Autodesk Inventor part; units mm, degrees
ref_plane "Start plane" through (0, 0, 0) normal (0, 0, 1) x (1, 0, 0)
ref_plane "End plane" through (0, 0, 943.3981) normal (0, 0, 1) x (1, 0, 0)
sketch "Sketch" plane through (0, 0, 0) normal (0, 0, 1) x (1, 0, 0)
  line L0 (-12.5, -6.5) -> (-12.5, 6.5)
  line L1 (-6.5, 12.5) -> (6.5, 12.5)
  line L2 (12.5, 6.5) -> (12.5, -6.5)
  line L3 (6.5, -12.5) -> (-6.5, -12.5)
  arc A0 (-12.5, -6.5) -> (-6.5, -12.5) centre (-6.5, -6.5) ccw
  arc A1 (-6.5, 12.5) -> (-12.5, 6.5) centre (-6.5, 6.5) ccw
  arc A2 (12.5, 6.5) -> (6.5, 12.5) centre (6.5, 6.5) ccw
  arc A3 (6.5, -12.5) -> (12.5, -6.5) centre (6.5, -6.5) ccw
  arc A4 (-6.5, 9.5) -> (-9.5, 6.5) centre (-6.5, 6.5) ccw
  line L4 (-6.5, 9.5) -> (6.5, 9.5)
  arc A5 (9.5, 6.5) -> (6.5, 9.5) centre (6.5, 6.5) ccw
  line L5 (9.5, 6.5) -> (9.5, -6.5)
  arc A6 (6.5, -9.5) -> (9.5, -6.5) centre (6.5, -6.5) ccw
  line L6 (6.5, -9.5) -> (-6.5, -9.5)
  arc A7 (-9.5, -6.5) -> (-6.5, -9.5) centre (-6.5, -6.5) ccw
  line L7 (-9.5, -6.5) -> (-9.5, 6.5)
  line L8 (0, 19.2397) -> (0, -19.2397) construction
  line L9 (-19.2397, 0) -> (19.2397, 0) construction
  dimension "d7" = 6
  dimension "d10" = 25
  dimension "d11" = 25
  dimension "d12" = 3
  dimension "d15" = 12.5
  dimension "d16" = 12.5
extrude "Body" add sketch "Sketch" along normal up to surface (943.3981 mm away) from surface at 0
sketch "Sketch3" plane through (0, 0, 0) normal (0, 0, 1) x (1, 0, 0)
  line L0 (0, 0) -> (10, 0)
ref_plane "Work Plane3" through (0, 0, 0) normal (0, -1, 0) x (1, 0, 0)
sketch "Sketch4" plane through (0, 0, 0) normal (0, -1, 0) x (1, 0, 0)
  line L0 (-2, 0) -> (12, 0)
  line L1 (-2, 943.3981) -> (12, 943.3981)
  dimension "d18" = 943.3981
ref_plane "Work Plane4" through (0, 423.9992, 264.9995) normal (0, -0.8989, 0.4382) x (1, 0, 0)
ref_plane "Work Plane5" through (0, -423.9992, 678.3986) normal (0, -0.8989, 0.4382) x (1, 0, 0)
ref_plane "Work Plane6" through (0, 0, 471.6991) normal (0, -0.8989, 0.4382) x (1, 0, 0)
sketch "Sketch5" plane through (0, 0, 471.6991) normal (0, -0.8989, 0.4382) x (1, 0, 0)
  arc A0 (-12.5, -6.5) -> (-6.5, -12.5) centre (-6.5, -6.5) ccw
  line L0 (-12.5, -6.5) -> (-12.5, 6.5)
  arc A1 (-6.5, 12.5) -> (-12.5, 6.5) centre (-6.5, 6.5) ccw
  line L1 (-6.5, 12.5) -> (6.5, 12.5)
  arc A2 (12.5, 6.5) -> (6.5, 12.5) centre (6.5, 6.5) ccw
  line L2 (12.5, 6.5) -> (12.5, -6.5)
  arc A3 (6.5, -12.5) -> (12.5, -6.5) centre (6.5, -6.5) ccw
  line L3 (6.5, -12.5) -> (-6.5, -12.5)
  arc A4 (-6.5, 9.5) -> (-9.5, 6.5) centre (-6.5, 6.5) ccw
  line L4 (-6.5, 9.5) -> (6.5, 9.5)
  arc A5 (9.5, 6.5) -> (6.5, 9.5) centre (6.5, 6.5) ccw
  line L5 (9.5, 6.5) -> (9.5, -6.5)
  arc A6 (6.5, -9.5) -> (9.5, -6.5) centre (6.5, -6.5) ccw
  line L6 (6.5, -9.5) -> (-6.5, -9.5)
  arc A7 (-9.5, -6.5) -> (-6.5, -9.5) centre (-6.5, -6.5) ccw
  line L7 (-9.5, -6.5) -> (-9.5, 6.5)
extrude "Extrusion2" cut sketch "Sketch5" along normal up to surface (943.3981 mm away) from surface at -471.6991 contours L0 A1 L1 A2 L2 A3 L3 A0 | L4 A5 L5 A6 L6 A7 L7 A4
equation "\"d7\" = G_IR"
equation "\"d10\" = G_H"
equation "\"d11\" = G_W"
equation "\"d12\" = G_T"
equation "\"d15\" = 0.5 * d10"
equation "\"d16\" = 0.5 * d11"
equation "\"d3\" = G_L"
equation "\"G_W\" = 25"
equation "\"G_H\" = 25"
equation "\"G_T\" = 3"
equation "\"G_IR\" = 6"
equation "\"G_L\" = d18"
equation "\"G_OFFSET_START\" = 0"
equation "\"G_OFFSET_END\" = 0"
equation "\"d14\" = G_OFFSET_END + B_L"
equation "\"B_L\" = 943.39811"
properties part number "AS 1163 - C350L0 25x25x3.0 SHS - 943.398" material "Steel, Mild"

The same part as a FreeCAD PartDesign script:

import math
import FreeCAD as App
import Part
import Sketcher
from FreeCAD import Vector
Q = App.Units.Quantity

doc = App.newDocument("Part")
body = doc.addObject("PartDesign::Body", "Body")
body.AllowCompound = True

# Sketch on XY plane
sketch1 = body.newObject("Sketcher::SketchObject", "Sketch")
sketch1.AttachmentSupport = (doc.getObject("XY_Plane"), [""])
sketch1.MapMode = "FlatFace"
sketch1.addGeometry([
    Part.LineSegment(Vector(-12.5, 6.5, 0), Vector(-12.5, -6.5, 0)),  # 0
    Part.ArcOfCircle(Part.Circle(Vector(-6.5, -6.5, 0), Vector(0, 0, 1), 6), math.radians(180), math.radians(270)),  # 1
    Part.LineSegment(Vector(-6.5, -12.5, 0), Vector(6.5, -12.5, 0)),  # 2
    Part.ArcOfCircle(Part.Circle(Vector(6.5, -6.5, 0), Vector(0, 0, 1), 6), math.radians(-90), math.radians(0)),  # 3
    Part.LineSegment(Vector(12.5, -6.5, 0), Vector(12.5, 6.5, 0)),  # 4
    Part.ArcOfCircle(Part.Circle(Vector(6.5, 6.5, 0), Vector(0, 0, 1), 6), math.radians(0), math.radians(90)),  # 5
    Part.LineSegment(Vector(6.5, 12.5, 0), Vector(-6.5, 12.5, 0)),  # 6
    Part.ArcOfCircle(Part.Circle(Vector(-6.5, 6.5, 0), Vector(0, 0, 1), 6), math.radians(90), math.radians(180)),  # 7
    Part.ArcOfCircle(Part.Circle(Vector(-6.5, 6.5, 0), Vector(0, 0, 1), 3), math.radians(90), math.radians(180)),  # 8
    Part.LineSegment(Vector(-6.5, 9.5, 0), Vector(6.5, 9.5, 0)),  # 9
    Part.ArcOfCircle(Part.Circle(Vector(6.5, 6.5, 0), Vector(0, 0, 1), 3), math.radians(0), math.radians(90)),  # 10
    Part.LineSegment(Vector(9.5, 6.5, 0), Vector(9.5, -6.5, 0)),  # 11
    Part.ArcOfCircle(Part.Circle(Vector(6.5, -6.5, 0), Vector(0, 0, 1), 3), math.radians(-90), math.radians(0)),  # 12
    Part.LineSegment(Vector(6.5, -9.5, 0), Vector(-6.5, -9.5, 0)),  # 13
    Part.ArcOfCircle(Part.Circle(Vector(-6.5, -6.5, 0), Vector(0, 0, 1), 3), math.radians(180), math.radians(270)),  # 14
    Part.LineSegment(Vector(-9.5, -6.5, 0), Vector(-9.5, 6.5, 0)),  # 15
], False)
sketch1.addConstraint([
    Sketcher.Constraint("Tangent", 0, 2, 1, 1),
    Sketcher.Constraint("Tangent", 1, 2, 2, 1),
    Sketcher.Constraint("Tangent", 2, 2, 3, 1),
    Sketcher.Constraint("Tangent", 3, 2, 4, 1),
    Sketcher.Constraint("Tangent", 4, 2, 5, 1),
    Sketcher.Constraint("Tangent", 5, 2, 6, 1),
    Sketcher.Constraint("Tangent", 6, 2, 7, 1),
    Sketcher.Constraint("Tangent", 7, 2, 0, 1),
    Sketcher.Constraint("Tangent", 8, 1, 9, 1),
    Sketcher.Constraint("Tangent", 9, 2, 10, 2),
    Sketcher.Constraint("Tangent", 10, 1, 11, 1),
    Sketcher.Constraint("Tangent", 11, 2, 12, 2),
    Sketcher.Constraint("Tangent", 12, 1, 13, 1),
    Sketcher.Constraint("Tangent", 13, 2, 14, 2),
    Sketcher.Constraint("Tangent", 14, 1, 15, 1),
    Sketcher.Constraint("Tangent", 15, 2, 8, 2),
    Sketcher.Constraint("Vertical", 0),
    Sketcher.Constraint("Horizontal", 2),
    Sketcher.Constraint("Vertical", 4),
    Sketcher.Constraint("Horizontal", 6),
    Sketcher.Constraint("Horizontal", 9),
    Sketcher.Constraint("Vertical", 11),
    Sketcher.Constraint("Horizontal", 13),
    Sketcher.Constraint("Vertical", 15),
    Sketcher.Constraint("Coincident", 8, 3, 7, 3),
    Sketcher.Constraint("Coincident", 10, 3, 5, 3),
    Sketcher.Constraint("Coincident", 12, 3, 3, 3),
    Sketcher.Constraint("Equal", 1, 3),
    Sketcher.Constraint("Equal", 3, 5),
    Sketcher.Constraint("Equal", 5, 7),
    Sketcher.Constraint("Equal", 12, 14),
    Sketcher.Constraint("Symmetric", 1, 3, 5, 3, -1, 1),
    Sketcher.Constraint("Equal", 13, 0),
    Sketcher.Constraint("Radius", 1, Q("6 mm")),
    Sketcher.Constraint("Radius", 8, Q("3 mm")),
    Sketcher.Constraint("DistanceX", 0, 2, -1, 1, Q("12.5 mm")),
])
pad1 = body.newObject("PartDesign::Pad", "Pad")
pad1.Profile = sketch1
pad1.Length = 943.3981

# Sketch on an angled plane
sketch2 = body.newObject("Sketcher::SketchObject", "Sketch001")
sketch2.Placement = App.Placement(Vector(0, 424.001746, 265.004735), App.Rotation(Vector(1, 0, 0), Vector(0, 0.438191138, 0.89888182), Vector(0, -0.89888182, 0.438191138), "ZXY"))
sketch2.addGeometry([
    Part.LineSegment(Vector(-12, 6, 0), Vector(-12, -6, 0)),  # 0
    Part.ArcOfCircle(Part.Circle(Vector(-6, -6, 0), Vector(0, 0, 1), 6), math.radians(180), math.radians(270)),  # 1
    Part.LineSegment(Vector(-6, -12, 0), Vector(6, -12, 0)),  # 2
    Part.ArcOfCircle(Part.Circle(Vector(6, -6, 0), Vector(0, 0, 1), 6), math.radians(-90), math.radians(0)),  # 3
    Part.LineSegment(Vector(12, -6, 0), Vector(12, 6, 0)),  # 4
    Part.ArcOfCircle(Part.Circle(Vector(6, 6, 0), Vector(0, 0, 1), 6), math.radians(0), math.radians(90)),  # 5
    Part.LineSegment(Vector(6, 12, 0), Vector(-6, 12, 0)),  # 6
    Part.ArcOfCircle(Part.Circle(Vector(-6, 6, 0), Vector(0, 0, 1), 6), math.radians(90), math.radians(180)),  # 7
], False)
sketch2.addConstraint([
    Sketcher.Constraint("Tangent", 0, 2, 1, 1),
    Sketcher.Constraint("Tangent", 1, 2, 2, 1),
    Sketcher.Constraint("Tangent", 2, 2, 3, 1),
    Sketcher.Constraint("Tangent", 3, 2, 4, 1),
    Sketcher.Constraint("Tangent", 4, 2, 5, 1),
    Sketcher.Constraint("Tangent", 5, 2, 6, 1),
    Sketcher.Constraint("Tangent", 6, 2, 7, 1),
    Sketcher.Constraint("Tangent", 7, 2, 0, 1),
    Sketcher.Constraint("Vertical", 0),
    Sketcher.Constraint("Horizontal", 2),
    Sketcher.Constraint("Vertical", 4),
    Sketcher.Constraint("Horizontal", 6),
    Sketcher.Constraint("Equal", 1, 3),
    Sketcher.Constraint("Equal", 3, 5),
    Sketcher.Constraint("Equal", 5, 7),
    Sketcher.Constraint("Symmetric", 1, 3, 5, 3, -1, 1),
    Sketcher.Constraint("Equal", 6, 0),
    Sketcher.Constraint("Radius", 1, Q("6 mm")),
    Sketcher.Constraint("DistanceX", 2, 1, 2, 2, Q("13 mm")),
])
pocket1 = body.newObject("PartDesign::Pocket", "Pocket")
pocket1.Profile = sketch2
pocket1.Length = 943.3981
pocket1.Reversed = True

doc.recompute()
